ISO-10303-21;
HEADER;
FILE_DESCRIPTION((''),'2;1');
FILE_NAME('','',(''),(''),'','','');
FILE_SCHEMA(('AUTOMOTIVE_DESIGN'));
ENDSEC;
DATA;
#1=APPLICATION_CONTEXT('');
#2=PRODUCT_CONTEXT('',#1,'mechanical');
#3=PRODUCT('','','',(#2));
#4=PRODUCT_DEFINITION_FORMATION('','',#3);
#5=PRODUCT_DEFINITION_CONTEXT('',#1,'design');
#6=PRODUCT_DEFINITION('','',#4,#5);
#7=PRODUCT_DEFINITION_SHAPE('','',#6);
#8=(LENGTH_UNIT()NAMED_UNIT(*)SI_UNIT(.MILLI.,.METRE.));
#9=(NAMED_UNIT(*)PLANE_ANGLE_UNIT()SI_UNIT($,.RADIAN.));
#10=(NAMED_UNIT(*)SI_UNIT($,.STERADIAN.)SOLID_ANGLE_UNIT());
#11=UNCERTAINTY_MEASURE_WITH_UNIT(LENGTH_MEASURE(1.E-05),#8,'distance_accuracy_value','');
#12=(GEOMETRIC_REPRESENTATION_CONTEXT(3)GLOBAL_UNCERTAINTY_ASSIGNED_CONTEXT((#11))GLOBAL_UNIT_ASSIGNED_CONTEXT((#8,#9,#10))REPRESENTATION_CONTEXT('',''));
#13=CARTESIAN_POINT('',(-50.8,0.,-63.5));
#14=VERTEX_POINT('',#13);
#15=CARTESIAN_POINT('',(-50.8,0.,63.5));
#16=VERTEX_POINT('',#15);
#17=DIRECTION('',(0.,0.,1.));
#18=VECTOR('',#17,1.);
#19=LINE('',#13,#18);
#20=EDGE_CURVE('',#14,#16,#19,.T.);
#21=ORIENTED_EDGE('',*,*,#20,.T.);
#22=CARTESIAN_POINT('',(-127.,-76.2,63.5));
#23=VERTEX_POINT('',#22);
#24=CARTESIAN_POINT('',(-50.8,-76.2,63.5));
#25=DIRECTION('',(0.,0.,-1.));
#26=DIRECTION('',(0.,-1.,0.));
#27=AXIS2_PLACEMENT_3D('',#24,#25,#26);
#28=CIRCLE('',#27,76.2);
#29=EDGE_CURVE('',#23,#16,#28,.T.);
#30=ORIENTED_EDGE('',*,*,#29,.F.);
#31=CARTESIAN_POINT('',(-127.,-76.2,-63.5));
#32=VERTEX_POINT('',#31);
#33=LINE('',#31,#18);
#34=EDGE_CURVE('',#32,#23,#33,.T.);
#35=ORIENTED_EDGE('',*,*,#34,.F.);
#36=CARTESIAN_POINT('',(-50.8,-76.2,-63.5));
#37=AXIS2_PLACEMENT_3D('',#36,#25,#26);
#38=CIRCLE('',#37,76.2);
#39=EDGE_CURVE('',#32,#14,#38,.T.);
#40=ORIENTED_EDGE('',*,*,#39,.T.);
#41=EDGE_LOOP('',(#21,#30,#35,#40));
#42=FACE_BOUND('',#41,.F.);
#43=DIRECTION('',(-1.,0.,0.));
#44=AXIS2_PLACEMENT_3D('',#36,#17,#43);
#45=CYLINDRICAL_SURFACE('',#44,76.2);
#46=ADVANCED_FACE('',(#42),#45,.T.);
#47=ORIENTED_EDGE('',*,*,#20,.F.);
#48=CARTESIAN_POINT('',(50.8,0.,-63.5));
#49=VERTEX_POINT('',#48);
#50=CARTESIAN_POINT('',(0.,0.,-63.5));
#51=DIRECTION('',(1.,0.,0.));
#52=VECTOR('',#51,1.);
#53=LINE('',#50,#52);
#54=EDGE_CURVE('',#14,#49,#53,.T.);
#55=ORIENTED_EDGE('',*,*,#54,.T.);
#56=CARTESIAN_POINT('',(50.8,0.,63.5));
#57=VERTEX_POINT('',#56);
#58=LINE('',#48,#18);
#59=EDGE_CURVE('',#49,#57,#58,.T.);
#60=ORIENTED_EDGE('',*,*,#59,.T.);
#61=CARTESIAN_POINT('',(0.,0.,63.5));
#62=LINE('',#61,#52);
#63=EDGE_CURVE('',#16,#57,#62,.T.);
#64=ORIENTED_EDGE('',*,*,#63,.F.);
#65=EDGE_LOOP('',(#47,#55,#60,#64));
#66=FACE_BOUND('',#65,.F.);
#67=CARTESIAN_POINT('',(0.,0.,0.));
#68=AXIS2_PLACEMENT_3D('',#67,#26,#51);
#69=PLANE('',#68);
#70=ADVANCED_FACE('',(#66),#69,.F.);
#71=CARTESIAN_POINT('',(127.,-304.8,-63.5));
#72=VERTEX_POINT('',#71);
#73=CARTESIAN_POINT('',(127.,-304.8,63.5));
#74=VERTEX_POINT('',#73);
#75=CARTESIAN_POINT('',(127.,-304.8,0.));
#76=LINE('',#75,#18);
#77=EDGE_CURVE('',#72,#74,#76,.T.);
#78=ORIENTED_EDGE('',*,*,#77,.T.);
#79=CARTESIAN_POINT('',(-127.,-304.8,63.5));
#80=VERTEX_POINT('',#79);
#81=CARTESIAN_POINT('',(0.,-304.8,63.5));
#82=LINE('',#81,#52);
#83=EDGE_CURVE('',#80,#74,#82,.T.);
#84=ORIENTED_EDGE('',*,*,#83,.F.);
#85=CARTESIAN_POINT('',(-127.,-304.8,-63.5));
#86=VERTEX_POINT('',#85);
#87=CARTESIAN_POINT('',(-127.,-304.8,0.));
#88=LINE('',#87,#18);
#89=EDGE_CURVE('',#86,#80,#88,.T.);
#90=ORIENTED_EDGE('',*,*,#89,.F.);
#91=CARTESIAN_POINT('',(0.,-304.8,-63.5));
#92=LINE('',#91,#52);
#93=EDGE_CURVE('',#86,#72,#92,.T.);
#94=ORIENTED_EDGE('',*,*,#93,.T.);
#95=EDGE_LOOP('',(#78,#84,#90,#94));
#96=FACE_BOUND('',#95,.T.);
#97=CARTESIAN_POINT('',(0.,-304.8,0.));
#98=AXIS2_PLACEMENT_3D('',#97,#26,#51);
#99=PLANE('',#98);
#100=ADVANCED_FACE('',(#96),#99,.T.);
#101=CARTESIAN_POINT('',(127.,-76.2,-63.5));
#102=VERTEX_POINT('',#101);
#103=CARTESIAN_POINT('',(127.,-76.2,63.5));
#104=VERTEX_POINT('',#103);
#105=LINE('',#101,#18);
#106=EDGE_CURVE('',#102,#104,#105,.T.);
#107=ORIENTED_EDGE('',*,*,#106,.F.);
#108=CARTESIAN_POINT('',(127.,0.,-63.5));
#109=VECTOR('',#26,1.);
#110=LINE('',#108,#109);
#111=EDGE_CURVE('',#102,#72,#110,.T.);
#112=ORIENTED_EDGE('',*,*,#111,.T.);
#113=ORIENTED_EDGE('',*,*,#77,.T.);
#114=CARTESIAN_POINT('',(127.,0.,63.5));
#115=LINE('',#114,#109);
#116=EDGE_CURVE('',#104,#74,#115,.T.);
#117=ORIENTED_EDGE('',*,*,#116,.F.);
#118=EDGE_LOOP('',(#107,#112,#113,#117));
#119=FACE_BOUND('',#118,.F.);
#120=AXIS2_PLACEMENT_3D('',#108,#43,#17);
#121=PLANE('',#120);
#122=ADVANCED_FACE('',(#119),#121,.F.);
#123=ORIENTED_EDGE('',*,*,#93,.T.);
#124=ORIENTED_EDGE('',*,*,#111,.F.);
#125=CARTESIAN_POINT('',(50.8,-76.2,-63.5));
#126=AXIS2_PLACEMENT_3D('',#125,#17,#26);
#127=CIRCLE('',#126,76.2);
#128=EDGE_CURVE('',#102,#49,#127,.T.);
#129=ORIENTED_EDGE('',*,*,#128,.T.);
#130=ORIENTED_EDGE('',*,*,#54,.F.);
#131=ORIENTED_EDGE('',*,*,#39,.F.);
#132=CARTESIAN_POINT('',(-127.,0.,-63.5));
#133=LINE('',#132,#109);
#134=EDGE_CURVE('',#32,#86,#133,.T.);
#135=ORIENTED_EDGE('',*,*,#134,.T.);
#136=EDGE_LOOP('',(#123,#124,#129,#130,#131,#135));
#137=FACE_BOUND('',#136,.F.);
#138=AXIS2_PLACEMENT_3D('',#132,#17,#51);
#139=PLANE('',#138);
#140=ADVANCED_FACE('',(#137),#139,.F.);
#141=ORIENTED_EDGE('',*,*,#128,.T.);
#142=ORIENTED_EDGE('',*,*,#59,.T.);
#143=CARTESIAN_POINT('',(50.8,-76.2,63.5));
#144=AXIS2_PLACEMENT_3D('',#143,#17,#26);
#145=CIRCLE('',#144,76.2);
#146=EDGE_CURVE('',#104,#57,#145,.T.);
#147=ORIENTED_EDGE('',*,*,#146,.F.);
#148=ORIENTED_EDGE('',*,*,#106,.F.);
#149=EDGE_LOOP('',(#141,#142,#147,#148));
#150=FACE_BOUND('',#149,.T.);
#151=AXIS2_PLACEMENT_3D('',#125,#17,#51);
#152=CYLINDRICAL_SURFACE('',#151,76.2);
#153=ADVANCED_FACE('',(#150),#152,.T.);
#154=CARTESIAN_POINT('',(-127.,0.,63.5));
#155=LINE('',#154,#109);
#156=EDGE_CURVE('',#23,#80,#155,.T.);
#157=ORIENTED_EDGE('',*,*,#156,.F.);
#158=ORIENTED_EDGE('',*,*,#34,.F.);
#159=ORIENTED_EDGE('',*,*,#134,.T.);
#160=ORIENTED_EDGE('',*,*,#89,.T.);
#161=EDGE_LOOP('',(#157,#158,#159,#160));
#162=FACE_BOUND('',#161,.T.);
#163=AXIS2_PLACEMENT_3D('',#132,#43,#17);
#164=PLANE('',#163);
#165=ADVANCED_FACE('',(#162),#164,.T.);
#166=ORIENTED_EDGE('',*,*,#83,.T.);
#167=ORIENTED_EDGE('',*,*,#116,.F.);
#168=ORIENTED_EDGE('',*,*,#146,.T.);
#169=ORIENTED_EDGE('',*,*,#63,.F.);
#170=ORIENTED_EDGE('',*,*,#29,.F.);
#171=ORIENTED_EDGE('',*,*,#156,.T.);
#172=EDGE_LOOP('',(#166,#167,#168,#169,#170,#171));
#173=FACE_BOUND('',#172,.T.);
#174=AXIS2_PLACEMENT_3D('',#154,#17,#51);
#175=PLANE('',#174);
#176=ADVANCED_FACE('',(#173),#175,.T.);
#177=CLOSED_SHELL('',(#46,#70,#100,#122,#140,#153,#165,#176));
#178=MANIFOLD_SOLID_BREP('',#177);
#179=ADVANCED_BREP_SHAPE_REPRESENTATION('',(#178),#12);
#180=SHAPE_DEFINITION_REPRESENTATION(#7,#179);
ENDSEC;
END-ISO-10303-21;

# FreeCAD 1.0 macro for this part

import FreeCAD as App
import Part
import Sketcher
from FreeCAD import Vector
Q = App.Units.Quantity


def edges_at(feature, points):
    """Names of the edges that pass closest to the given points."""
    edges = feature.Shape.Edges
    near = lambda p: min(range(len(edges)), key=lambda i: edges[i].distToShape(Part.Vertex(*p))[0])
    return sorted({f"Edge{near(p) + 1}" for p in points})


def add_polygon(sketch, points):
    """Adds a closed chain of lines whose ends are joined by coincident constraints."""
    first, n = sketch.GeometryCount, len(points)
    for a, b in zip(points, points[1:] + points[:1]):
        sketch.addGeometry(Part.LineSegment(App.Vector(*a, 0), App.Vector(*b, 0)), False)
    for i in range(n):
        sketch.addConstraint(Sketcher.Constraint("Coincident", first + i, 2, first + (i + 1) % n, 1))

doc = App.newDocument("Part")
body = doc.addObject("PartDesign::Body", "Body")

sketch1 = body.newObject("Sketcher::SketchObject", "Sketch")
sketch1.AttachmentSupport = (doc.getObject("XZ_Plane"), [""])
sketch1.MapMode = "FlatFace"
add_polygon(sketch1, [(-127, 64), (-127, -64), (127, -64), (127, 64)])
sketch1.addConstraint(Sketcher.Constraint("Vertical", 0))
sketch1.addConstraint(Sketcher.Constraint("Horizontal", 1))
sketch1.addConstraint(Sketcher.Constraint("Vertical", 2))
sketch1.addConstraint(Sketcher.Constraint("Horizontal", 3))
sketch1.addConstraint(Sketcher.Constraint("Symmetric", 0, 2, 2, 2, -1, 1))
sketch1.addConstraint(Sketcher.Constraint("DistanceX", 1, 1, 1, 2, Q("10 in")))
sketch1.addConstraint(Sketcher.Constraint("DistanceY", 0, 2, 0, 1, Q("5 in")))
pad1 = body.newObject("PartDesign::Pad", "Pad")
pad1.Profile = sketch1
pad1.Length = Q("12 in")
doc.recompute()

fillet = body.newObject("PartDesign::Fillet", "Fillet")
fillet.Base = (pad1, edges_at(pad1, [(-127, 0, 0), (127, 0, 0)]))
fillet.Radius = Q("3 in")

doc.recompute()
